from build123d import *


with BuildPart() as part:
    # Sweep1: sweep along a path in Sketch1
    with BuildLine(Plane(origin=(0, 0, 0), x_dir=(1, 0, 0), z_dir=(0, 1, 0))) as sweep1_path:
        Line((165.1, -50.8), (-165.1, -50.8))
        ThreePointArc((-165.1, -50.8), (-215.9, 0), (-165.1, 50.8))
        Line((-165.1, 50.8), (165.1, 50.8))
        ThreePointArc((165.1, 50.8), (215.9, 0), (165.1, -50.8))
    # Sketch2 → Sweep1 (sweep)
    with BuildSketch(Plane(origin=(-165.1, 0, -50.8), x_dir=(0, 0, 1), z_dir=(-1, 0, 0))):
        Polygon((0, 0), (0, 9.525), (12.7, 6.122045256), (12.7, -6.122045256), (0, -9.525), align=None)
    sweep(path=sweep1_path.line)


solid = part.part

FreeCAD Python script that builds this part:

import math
import FreeCAD as App
import Part
import Sketcher
from FreeCAD import Vector
Q = App.Units.Quantity

doc = App.newDocument("Part")
params = doc.addObject("Spreadsheet::Sheet", "Params")
for row, (alias, value) in enumerate([
    ("sketch1_width", "0.75 in"),
    ("sketch2_radius", "2 in"),
    ("sketch2_width", "13 in"),
], start=1):
    params.set(f"A{row}", alias)
    params.set(f"B{row}", "=" + value)
    params.setAlias(f"B{row}", alias)

body = doc.addObject("PartDesign::Body", "Body")

# Sketch on YZ plane
sketch1 = body.newObject("Sketcher::SketchObject", "Sketch")
sketch1.AttachmentSupport = (doc.getObject("YZ_Plane"), [""])
sketch1.MapMode = "FlatFace"
sketch1.AttachmentOffset = App.Placement(Vector(0, 0, -6.5 * 25.4), App.Rotation())
sketch1.addGeometry([
    Part.LineSegment(Vector(10, -51, 0), Vector(-10, -51, 0)),
    Part.LineSegment(Vector(-10, -51, 0), Vector(-6, -38, 0)),
    Part.LineSegment(Vector(-6, -38, 0), Vector(6, -38, 0)),
    Part.LineSegment(Vector(6, -38, 0), Vector(10, -51, 0)),
], False)
sketch1.addConstraint([
    Sketcher.Constraint("Coincident", 0, 2, 1, 1),
    Sketcher.Constraint("Coincident", 1, 2, 2, 1),
    Sketcher.Constraint("Coincident", 2, 2, 3, 1),
    Sketcher.Constraint("Coincident", 3, 2, 0, 1),
    Sketcher.Constraint("Horizontal", 0),
    Sketcher.Constraint("Horizontal", 2),
    Sketcher.Constraint("Equal", 1, 3),
    Sketcher.Constraint("DistanceY", 0, 2, -1, 1, Q("2 in")),
    Sketcher.Constraint("Angle", 1, Q("75 deg")),
    Sketcher.Constraint("DistanceX", 0, 2, 0, 1, Q("0.75 in")),
    Sketcher.Constraint("DistanceY", 1, 2, -1, 1, Q("1.5 in")),
    Sketcher.Constraint("DistanceX", 0, 2, -1, 1, Q("0.375 in")),
])
sketch1.setExpression("Constraints[9]", "Params.sketch1_width")

# Sketch on XZ plane
sketch2 = body.newObject("Sketcher::SketchObject", "Sketch001")
sketch2.AttachmentSupport = (doc.getObject("XZ_Plane"), [""])
sketch2.MapMode = "FlatFace"
sketch2.addGeometry([
    Part.LineSegment(Vector(165, 51, 0), Vector(-165, 51, 0)),
    Part.ArcOfCircle(Part.Circle(Vector(-165, 0, 0), Vector(0, 0, 1), 51), math.radians(90), math.radians(270)),
    Part.LineSegment(Vector(-165, -51, 0), Vector(165, -51, 0)),
    Part.ArcOfCircle(Part.Circle(Vector(165, 0, 0), Vector(0, 0, 1), 51), math.radians(-90), math.radians(90)),
], False)
sketch2.addConstraint([
    Sketcher.Constraint("Tangent", 0, 2, 1, 1),
    Sketcher.Constraint("Tangent", 1, 2, 2, 1),
    Sketcher.Constraint("Tangent", 2, 2, 3, 1),
    Sketcher.Constraint("Tangent", 3, 2, 0, 1),
    Sketcher.Constraint("Horizontal", 0),
    Sketcher.Constraint("Horizontal", 2),
    Sketcher.Constraint("Symmetric", 1, 3, 3, 3, -1, 1),
    Sketcher.Constraint("Radius", 1, Q("2 in")),
    Sketcher.Constraint("DistanceX", 0, 2, 0, 1, Q("13 in")),
])
sketch2.setExpression("Constraints[7]", "Params.sketch2_radius")
sketch2.setExpression("Constraints[8]", "Params.sketch2_width")
doc.recompute()

additivepipe = body.newObject("PartDesign::AdditivePipe", "AdditivePipe")
additivepipe.Profile = sketch1
additivepipe.Spine = (sketch2, ["Edge1", "Edge2", "Edge3", "Edge4"])

doc.recompute()
